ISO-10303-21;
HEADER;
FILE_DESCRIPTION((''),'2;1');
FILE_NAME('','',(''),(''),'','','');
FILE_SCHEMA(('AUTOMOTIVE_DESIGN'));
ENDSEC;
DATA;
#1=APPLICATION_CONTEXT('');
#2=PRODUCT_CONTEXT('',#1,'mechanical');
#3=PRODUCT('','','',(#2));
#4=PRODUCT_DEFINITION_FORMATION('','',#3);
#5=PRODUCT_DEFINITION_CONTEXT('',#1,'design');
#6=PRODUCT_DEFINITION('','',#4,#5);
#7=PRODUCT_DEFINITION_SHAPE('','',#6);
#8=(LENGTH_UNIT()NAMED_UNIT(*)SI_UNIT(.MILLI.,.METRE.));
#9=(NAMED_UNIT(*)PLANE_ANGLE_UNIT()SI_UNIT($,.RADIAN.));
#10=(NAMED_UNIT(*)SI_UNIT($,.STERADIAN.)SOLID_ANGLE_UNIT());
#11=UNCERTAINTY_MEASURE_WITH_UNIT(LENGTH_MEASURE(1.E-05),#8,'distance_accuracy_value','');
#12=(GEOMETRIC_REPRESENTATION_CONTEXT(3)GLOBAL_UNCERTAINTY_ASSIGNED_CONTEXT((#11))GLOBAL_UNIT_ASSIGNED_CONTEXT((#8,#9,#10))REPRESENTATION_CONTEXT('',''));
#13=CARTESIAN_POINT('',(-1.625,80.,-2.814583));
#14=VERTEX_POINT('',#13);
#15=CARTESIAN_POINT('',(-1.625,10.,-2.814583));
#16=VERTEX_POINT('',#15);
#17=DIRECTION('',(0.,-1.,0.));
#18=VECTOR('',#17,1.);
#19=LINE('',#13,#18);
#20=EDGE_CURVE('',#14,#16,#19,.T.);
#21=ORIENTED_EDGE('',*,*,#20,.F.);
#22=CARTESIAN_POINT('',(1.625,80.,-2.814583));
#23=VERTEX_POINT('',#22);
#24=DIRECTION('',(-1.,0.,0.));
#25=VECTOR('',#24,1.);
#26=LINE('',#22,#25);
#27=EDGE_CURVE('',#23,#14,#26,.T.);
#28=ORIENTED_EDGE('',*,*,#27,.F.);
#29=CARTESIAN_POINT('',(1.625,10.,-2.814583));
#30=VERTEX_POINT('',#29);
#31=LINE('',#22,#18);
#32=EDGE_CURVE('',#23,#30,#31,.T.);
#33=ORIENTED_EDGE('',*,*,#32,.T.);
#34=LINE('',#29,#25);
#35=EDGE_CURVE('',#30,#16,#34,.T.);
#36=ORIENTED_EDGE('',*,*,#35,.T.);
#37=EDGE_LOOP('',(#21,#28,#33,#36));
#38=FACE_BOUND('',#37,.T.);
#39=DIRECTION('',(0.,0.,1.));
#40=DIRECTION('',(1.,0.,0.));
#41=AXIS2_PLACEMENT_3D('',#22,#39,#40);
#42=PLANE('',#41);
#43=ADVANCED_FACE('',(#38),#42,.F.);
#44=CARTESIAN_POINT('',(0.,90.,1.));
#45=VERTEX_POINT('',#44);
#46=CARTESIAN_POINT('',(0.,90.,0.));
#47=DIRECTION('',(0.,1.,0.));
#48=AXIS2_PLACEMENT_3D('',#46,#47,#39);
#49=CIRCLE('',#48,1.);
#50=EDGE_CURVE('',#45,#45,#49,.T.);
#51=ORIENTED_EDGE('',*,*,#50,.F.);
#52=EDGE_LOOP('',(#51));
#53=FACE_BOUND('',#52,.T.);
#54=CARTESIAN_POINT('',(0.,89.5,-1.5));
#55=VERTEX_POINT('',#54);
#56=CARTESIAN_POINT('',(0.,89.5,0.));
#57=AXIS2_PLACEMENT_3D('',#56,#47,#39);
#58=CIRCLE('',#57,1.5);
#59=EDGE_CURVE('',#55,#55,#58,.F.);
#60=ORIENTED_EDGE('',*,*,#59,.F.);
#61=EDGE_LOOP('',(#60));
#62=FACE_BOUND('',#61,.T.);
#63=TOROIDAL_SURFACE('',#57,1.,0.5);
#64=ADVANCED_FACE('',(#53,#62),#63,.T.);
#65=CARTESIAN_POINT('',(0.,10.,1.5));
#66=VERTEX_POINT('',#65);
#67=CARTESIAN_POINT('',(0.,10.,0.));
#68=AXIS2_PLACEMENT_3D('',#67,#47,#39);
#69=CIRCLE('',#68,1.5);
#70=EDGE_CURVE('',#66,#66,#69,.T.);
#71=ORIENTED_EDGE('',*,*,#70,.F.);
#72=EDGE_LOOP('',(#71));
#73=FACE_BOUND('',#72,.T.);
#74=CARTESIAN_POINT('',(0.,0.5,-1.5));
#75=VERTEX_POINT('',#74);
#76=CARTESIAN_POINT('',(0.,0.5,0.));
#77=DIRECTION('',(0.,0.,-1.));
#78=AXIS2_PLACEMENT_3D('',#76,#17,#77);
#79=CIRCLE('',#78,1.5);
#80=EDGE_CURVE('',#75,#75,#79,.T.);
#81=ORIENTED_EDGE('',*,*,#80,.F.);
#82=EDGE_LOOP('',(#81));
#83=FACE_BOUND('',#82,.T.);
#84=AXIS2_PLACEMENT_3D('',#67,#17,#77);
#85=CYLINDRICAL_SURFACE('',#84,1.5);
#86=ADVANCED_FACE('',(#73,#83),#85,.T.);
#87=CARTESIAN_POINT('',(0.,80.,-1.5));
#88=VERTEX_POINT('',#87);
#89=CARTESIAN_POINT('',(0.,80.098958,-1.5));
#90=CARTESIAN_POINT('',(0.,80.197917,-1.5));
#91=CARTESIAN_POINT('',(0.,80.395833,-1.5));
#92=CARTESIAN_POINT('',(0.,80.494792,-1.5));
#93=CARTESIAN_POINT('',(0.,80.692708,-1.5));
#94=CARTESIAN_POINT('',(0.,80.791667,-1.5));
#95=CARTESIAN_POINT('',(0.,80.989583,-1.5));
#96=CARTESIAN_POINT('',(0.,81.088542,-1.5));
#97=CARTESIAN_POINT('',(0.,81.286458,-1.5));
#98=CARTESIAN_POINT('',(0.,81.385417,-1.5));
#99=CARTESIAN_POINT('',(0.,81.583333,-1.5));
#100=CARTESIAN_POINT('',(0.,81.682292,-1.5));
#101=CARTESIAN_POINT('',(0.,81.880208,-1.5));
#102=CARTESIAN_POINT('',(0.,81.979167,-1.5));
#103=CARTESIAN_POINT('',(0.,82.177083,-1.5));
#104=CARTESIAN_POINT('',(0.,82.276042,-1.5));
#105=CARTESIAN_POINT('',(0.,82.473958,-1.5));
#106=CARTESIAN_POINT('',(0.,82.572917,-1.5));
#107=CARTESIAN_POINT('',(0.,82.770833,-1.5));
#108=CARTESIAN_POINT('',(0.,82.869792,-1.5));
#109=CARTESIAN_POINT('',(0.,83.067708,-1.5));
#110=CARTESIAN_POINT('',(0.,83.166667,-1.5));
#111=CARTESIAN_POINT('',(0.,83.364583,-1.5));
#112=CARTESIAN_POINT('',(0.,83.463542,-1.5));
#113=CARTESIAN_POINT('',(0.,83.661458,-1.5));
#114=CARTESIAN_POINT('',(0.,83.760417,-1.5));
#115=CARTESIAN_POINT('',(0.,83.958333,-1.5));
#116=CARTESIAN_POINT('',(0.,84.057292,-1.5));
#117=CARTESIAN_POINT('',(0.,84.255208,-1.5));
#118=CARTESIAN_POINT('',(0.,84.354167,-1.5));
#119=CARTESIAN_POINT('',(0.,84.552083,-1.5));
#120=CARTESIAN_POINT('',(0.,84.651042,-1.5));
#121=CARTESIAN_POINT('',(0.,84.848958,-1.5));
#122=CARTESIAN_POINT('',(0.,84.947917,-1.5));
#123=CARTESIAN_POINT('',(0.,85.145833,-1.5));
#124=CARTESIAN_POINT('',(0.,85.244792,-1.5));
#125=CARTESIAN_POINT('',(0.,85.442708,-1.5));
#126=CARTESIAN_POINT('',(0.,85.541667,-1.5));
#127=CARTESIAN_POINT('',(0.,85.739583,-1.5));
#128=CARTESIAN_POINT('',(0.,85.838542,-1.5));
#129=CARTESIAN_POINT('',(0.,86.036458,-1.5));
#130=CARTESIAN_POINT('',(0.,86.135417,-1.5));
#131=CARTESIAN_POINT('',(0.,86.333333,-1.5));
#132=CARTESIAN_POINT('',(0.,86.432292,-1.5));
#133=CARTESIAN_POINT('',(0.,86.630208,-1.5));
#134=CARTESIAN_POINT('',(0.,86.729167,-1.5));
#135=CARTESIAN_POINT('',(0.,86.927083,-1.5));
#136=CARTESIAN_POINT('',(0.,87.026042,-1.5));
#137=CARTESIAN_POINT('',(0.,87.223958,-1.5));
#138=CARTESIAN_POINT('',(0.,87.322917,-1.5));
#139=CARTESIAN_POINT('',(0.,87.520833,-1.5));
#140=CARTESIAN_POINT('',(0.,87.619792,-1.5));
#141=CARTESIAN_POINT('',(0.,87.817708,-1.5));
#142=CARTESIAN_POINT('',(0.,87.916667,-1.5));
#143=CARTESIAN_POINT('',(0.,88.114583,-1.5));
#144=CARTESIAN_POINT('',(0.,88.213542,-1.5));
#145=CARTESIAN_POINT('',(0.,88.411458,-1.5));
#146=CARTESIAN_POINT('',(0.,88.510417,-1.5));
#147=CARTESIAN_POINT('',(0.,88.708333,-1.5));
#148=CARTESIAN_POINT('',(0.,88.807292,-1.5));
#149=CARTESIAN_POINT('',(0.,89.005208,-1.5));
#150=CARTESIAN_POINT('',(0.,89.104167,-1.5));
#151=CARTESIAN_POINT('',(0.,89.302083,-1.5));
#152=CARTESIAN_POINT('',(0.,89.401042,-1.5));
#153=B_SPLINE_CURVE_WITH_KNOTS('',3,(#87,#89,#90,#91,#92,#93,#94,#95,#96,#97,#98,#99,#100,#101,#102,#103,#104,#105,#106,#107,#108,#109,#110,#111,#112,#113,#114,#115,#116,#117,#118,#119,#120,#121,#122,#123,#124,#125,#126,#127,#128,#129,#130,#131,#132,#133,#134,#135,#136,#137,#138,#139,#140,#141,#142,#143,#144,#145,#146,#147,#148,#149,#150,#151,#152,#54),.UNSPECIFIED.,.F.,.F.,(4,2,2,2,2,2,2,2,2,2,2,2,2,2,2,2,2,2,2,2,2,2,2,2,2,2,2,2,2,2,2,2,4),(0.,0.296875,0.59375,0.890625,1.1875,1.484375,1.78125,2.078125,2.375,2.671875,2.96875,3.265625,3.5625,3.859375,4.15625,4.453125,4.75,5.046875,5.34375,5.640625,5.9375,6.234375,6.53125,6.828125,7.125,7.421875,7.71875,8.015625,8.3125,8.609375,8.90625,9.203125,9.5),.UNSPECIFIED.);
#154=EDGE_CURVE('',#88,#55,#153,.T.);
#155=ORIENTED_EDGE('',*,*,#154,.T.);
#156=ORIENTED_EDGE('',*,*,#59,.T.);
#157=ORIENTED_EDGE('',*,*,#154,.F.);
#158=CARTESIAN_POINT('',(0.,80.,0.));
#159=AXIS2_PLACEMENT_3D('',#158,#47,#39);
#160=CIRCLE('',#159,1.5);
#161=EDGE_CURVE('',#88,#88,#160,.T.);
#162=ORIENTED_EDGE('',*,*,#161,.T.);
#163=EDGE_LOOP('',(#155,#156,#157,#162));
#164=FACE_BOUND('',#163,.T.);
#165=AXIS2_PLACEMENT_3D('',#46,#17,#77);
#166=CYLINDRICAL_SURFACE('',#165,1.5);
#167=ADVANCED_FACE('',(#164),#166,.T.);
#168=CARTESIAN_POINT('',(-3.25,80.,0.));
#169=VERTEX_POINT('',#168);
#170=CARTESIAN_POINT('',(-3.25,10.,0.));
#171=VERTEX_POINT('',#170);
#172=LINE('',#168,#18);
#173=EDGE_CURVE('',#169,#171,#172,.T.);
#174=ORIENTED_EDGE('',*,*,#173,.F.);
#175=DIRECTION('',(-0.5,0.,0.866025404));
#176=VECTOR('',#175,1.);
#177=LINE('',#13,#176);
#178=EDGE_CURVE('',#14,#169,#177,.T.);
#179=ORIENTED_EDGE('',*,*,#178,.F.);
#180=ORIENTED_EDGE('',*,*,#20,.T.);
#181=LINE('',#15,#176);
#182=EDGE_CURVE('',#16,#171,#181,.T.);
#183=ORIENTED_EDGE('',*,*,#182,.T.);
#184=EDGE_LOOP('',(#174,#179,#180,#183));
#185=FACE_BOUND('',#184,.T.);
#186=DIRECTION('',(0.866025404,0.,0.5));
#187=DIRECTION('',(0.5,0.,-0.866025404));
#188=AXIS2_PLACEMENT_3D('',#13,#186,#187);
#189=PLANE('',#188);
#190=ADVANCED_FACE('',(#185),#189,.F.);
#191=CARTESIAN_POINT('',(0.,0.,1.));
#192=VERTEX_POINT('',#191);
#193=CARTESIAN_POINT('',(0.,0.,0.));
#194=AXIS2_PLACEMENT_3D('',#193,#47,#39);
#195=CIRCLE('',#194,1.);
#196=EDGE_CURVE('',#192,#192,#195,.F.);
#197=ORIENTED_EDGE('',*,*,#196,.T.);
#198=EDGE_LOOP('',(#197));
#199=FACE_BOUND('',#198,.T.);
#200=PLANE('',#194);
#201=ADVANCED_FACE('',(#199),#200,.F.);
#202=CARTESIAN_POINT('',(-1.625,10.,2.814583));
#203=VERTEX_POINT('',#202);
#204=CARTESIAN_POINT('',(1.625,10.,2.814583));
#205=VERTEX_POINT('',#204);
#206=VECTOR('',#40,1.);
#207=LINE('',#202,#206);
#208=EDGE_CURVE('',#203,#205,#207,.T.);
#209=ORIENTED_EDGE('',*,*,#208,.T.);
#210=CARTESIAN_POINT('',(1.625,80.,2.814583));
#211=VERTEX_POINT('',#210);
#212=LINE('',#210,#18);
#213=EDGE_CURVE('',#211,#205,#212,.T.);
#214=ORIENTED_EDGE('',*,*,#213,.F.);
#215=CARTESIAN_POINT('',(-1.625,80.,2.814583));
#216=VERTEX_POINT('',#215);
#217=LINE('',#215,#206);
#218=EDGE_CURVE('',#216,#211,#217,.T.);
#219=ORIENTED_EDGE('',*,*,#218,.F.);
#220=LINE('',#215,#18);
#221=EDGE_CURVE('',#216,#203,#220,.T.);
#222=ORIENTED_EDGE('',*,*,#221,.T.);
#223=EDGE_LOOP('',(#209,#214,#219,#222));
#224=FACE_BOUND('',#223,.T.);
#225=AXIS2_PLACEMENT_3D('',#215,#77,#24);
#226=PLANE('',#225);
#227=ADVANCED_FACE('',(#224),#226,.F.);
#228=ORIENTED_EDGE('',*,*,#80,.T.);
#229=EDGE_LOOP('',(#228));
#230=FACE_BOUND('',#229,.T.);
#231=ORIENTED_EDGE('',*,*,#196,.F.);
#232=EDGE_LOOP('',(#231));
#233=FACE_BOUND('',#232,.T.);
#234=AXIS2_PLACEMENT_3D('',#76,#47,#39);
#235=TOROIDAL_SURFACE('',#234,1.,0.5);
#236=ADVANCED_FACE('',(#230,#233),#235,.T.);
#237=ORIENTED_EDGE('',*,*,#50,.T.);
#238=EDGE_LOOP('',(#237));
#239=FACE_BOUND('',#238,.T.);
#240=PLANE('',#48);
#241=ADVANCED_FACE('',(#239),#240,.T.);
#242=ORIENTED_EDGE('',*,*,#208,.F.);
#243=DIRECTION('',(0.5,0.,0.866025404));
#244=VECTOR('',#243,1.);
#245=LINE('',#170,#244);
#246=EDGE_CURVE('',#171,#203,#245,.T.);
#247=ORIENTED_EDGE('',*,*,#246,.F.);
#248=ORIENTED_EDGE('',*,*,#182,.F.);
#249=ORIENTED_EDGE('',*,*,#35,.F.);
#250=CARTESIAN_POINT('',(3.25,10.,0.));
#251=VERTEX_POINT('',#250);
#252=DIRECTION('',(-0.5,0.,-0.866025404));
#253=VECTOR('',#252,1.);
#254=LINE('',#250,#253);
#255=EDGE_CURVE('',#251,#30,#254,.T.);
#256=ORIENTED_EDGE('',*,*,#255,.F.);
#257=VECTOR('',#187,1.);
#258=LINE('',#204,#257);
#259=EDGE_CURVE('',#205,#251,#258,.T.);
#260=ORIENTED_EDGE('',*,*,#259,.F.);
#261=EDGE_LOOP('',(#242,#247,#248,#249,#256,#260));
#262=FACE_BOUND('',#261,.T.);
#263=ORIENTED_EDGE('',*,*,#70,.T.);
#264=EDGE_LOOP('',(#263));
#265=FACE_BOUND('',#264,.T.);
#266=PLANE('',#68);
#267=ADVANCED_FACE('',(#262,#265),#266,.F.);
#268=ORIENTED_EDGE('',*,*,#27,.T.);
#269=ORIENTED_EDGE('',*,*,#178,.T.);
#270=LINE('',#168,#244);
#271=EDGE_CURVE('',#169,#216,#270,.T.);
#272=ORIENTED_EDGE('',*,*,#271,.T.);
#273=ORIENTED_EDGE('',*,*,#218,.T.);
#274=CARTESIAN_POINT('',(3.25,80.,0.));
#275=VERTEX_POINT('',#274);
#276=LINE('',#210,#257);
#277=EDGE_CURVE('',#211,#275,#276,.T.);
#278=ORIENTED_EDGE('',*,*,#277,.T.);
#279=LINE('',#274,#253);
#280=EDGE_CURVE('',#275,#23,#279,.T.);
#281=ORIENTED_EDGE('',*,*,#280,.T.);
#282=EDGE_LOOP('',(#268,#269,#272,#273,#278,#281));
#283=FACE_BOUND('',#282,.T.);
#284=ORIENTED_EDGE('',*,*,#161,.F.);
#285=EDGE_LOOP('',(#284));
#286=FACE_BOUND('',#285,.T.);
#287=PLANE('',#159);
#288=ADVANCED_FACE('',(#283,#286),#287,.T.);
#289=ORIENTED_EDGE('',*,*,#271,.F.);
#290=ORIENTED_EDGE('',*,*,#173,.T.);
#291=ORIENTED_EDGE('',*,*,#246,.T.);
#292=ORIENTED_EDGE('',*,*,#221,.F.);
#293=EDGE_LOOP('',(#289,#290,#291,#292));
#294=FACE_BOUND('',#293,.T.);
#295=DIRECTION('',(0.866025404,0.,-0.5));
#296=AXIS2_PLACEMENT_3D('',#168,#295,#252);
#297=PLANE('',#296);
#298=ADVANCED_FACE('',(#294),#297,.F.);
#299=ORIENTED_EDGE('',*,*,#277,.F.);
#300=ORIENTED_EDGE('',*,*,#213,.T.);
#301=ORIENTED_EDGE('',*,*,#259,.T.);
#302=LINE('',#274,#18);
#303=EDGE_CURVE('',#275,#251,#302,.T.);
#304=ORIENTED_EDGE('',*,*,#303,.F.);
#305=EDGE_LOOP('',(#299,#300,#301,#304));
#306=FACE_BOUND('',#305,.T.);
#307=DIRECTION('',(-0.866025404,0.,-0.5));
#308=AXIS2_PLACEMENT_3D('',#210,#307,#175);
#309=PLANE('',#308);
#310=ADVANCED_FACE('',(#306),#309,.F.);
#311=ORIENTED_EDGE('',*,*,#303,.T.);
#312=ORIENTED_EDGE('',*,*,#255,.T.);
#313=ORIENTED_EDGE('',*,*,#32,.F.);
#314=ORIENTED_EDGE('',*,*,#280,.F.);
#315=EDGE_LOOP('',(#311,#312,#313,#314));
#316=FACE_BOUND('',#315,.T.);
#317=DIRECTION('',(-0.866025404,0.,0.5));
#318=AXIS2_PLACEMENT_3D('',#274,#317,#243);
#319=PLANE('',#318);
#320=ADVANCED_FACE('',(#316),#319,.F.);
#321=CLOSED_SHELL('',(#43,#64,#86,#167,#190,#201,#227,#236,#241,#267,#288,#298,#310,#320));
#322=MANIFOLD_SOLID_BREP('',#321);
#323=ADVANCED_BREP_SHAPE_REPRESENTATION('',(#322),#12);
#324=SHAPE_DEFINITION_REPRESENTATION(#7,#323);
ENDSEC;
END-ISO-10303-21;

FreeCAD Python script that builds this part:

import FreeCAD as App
import Part
import Sketcher
from FreeCAD import Vector
Q = App.Units.Quantity


def edges_at(feature, points):
    """Names of the edges that pass closest to the given points."""
    edges = feature.Shape.Edges
    near = lambda p: min(range(len(edges)), key=lambda i: edges[i].distToShape(Part.Vertex(*p))[0])
    return sorted({f"Edge{near(p) + 1}" for p in points})


def add_polygon(sketch, points):
    """Adds a closed chain of lines whose ends are joined by coincident constraints."""
    first, n = sketch.GeometryCount, len(points)
    for a, b in zip(points, points[1:] + points[:1]):
        sketch.addGeometry(Part.LineSegment(App.Vector(*a, 0), App.Vector(*b, 0)), False)
    for i in range(n):
        sketch.addConstraint(Sketcher.Constraint("Coincident", first + i, 2, first + (i + 1) % n, 1))

doc = App.newDocument("Part")
body = doc.addObject("PartDesign::Body", "Body")

# Sketch on XZ plane
sketch1 = doc.addObject("Sketcher::SketchObject", "Sketch")
body.addObject(sketch1)
sketch1.AttachmentSupport = (doc.XZ_Plane, [""])
sketch1.MapMode = "FlatFace"
sketch1.addGeometry(Part.Circle(Vector(0, 0, 0), Vector(0, 0, 1), 1.5), False)
sketch1.addConstraint(Sketcher.Constraint("Coincident", 0, 3, -1, 1))
sketch1.addConstraint(Sketcher.Constraint("Diameter", 0, Q("3 mm")))
pad1 = doc.addObject("PartDesign::Pad", "Pad")
body.addObject(pad1)
pad1.Profile = sketch1
pad1.Length = 90
pad1.Reversed = True
doc.recompute()

fillet = doc.addObject("PartDesign::Fillet", "Fillet")
body.addObject(fillet)
fillet.Base = (pad1, edges_at(pad1, [(0, 0, 1.5), (0, 90, 1.5)]))
fillet.Radius = 0.5

# Sketch on XZ plane
sketch2 = doc.addObject("Sketcher::SketchObject", "Sketch001")
body.addObject(sketch2)
sketch2.AttachmentSupport = (doc.XZ_Plane, [""])
sketch2.MapMode = "FlatFace"
add_polygon(sketch2, [(-1.6, -2.8), (-3.2, 0), (-1.6, 2.8), (1.6, 2.8), (3.2, 0), (1.6, -2.8)])  # lines 0-5
sketch2.addGeometry(Part.Circle(Vector(0, 0, 0), Vector(0, 0, 1), 1.5), False)  # 6
sketch2.addConstraint(Sketcher.Constraint("Horizontal", 2))
sketch2.addConstraint(Sketcher.Constraint("Horizontal", 5))
sketch2.addConstraint(Sketcher.Constraint("Coincident", 6, 3, -1, 1))
sketch2.addConstraint(Sketcher.Constraint("Symmetric", 0, 2, 3, 2, -1, 1))
sketch2.addConstraint(Sketcher.Constraint("Symmetric", 1, 2, 4, 2, -1, 1))
sketch2.addConstraint(Sketcher.Constraint("PointOnObject", 0, 2, -1))
sketch2.addConstraint(Sketcher.Constraint("Parallel", 0, 3))
sketch2.addConstraint(Sketcher.Constraint("Vertical", 2, 2, 4, 2))
sketch2.addConstraint(Sketcher.Constraint("Diameter", 6, Q("3 mm")))
sketch2.addConstraint(Sketcher.Constraint("Angle", 0, Q("120 deg")))
sketch2.addConstraint(Sketcher.Constraint("DistanceX", 2, 1, 2, 2, Q("3.25 mm")))
sketch2.addConstraint(Sketcher.Constraint("DistanceX", 0, 2, 3, 2, Q("6.5 mm")))
pad2 = doc.addObject("PartDesign::Pad", "Pad001")
body.addObject(pad2)
pad2.Profile = sketch2
pad2.Length = 80
pad2.Reversed = True

# Sketch on XZ plane
sketch3 = doc.addObject("Sketcher::SketchObject", "Sketch002")
body.addObject(sketch3)
sketch3.AttachmentSupport = (doc.XZ_Plane, [""])
sketch3.MapMode = "FlatFace"
add_polygon(sketch3, [(-1.6, -2.8), (-3.2, 0), (-1.6, 2.8), (1.6, 2.8), (3.2, 0), (1.6, -2.8)])  # lines 0-5
sketch3.addGeometry(Part.Circle(Vector(0, 0, 0), Vector(0, 0, 1), 1.5), False)  # 6
sketch3.addConstraint(Sketcher.Constraint("Horizontal", 2))
sketch3.addConstraint(Sketcher.Constraint("Horizontal", 5))
sketch3.addConstraint(Sketcher.Constraint("Coincident", 6, 3, -1, 1))
sketch3.addConstraint(Sketcher.Constraint("Symmetric", 0, 2, 3, 2, -1, 1))
sketch3.addConstraint(Sketcher.Constraint("Symmetric", 1, 2, 4, 2, -1, 1))
sketch3.addConstraint(Sketcher.Constraint("PointOnObject", 0, 2, -1))
sketch3.addConstraint(Sketcher.Constraint("Parallel", 0, 3))
sketch3.addConstraint(Sketcher.Constraint("Vertical", 2, 2, 4, 2))
sketch3.addConstraint(Sketcher.Constraint("Diameter", 6, Q("3 mm")))
sketch3.addConstraint(Sketcher.Constraint("Angle", 0, Q("120 deg")))
sketch3.addConstraint(Sketcher.Constraint("DistanceX", 2, 1, 2, 2, Q("3.25 mm")))
sketch3.addConstraint(Sketcher.Constraint("DistanceX", 0, 2, 3, 2, Q("6.5 mm")))
pocket1 = doc.addObject("PartDesign::Pocket", "Pocket")
body.addObject(pocket1)
pocket1.Profile = sketch3
pocket1.Length = 10

doc.recompute()
